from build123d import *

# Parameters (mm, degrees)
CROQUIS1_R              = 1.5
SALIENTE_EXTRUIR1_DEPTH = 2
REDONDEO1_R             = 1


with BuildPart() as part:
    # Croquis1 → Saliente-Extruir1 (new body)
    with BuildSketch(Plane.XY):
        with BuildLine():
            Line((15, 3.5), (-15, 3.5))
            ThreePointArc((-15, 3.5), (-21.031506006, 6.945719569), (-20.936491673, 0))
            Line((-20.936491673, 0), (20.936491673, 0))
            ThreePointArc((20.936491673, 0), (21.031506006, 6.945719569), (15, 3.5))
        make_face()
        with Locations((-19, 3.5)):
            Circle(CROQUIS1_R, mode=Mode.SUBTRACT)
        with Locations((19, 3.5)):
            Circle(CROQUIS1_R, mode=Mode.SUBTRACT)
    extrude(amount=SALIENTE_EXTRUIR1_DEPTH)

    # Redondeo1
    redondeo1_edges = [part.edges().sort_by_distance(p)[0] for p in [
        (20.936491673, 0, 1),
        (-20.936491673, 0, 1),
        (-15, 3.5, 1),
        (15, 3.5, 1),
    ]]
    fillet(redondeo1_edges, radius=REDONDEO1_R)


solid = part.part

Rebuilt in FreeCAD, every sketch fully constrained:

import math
import FreeCAD as App
import Part
import Sketcher


def edges_at(feature, points):
    """Names of the edges that pass closest to the given points."""
    edges = feature.Shape.Edges
    near = lambda p: min(range(len(edges)), key=lambda i: edges[i].distToShape(Part.Vertex(*p))[0])
    return sorted({f"Edge{near(p) + 1}" for p in points})

doc = App.newDocument("Part")
body = doc.addObject("PartDesign::Body", "Body")

sketch1 = doc.addObject("Sketcher::SketchObject", "Sketch")
body.addObject(sketch1)
sketch1.AttachmentSupport = (doc.XY_Plane, [""])
sketch1.MapMode = "FlatFace"
sketch1.addGeometry(Part.LineSegment(App.Vector(15, 3.5, 0), App.Vector(-15, 3.5, 0)), False)
sketch1.addGeometry(Part.ArcOfCircle(Part.Circle(App.Vector(-19, 3.5, 0), App.Vector(0, 0, 1), 4), math.radians(0), math.radians(241)), False)
sketch1.addGeometry(Part.LineSegment(App.Vector(-20.9, 0, 0), App.Vector(20.9, 0, 0)), False)
sketch1.addGeometry(Part.ArcOfCircle(Part.Circle(App.Vector(19, 3.5, 0), App.Vector(0, 0, 1), 4), math.radians(-61), math.radians(180)), False)
sketch1.addGeometry(Part.Circle(App.Vector(-19, 3.5, 0), App.Vector(0, 0, 1), 1.5), False)
sketch1.addGeometry(Part.Circle(App.Vector(19, 3.5, 0), App.Vector(0, 0, 1), 1.5), False)
sketch1.addConstraint(Sketcher.Constraint("Coincident", 0, 2, 1, 1))
sketch1.addConstraint(Sketcher.Constraint("Coincident", 1, 2, 2, 1))
sketch1.addConstraint(Sketcher.Constraint("Coincident", 2, 2, 3, 1))
sketch1.addConstraint(Sketcher.Constraint("Coincident", 3, 2, 0, 1))
sketch1.addConstraint(Sketcher.Constraint("Horizontal", 0))
sketch1.addConstraint(Sketcher.Constraint("Horizontal", 2))
sketch1.addConstraint(Sketcher.Constraint("Coincident", 4, 3, 1, 3))
sketch1.addConstraint(Sketcher.Constraint("Coincident", 5, 3, 3, 3))
sketch1.addConstraint(Sketcher.Constraint("Equal", 1, 3))
sketch1.addConstraint(Sketcher.Constraint("Equal", 4, 5))
sketch1.addConstraint(Sketcher.Constraint("Symmetric", 1, 2, 2, 2, -1, 1))
sketch1.addConstraint(Sketcher.Constraint("Horizontal", 1, 3, 3, 3))
sketch1.addConstraint(Sketcher.Constraint("Horizontal", 5, 3, 0, 2))
sketch1.addConstraint(Sketcher.Constraint("Diameter", 4, 3.0))
sketch1.addConstraint(Sketcher.Constraint("Radius", 1, 4.0))
sketch1.addConstraint(Sketcher.Constraint("DistanceX", 0, 2, 0, 1, 30.0))
sketch1.addConstraint(Sketcher.Constraint("DistanceY", -1, 1, 1, 3, 3.5))
pad1 = doc.addObject("PartDesign::Pad", "Pad")
body.addObject(pad1)
pad1.Profile = sketch1
pad1.Length = 2
doc.recompute()

fillet = doc.addObject("PartDesign::Fillet", "Fillet")
body.addObject(fillet)
fillet.Base = (pad1, edges_at(pad1, [
    (20.936, 0, 1),
    (-20.936, 0, 1),
    (-15, 3.5, 1),
    (15, 3.5, 1),
]))
fillet.Radius = 1

doc.recompute()
